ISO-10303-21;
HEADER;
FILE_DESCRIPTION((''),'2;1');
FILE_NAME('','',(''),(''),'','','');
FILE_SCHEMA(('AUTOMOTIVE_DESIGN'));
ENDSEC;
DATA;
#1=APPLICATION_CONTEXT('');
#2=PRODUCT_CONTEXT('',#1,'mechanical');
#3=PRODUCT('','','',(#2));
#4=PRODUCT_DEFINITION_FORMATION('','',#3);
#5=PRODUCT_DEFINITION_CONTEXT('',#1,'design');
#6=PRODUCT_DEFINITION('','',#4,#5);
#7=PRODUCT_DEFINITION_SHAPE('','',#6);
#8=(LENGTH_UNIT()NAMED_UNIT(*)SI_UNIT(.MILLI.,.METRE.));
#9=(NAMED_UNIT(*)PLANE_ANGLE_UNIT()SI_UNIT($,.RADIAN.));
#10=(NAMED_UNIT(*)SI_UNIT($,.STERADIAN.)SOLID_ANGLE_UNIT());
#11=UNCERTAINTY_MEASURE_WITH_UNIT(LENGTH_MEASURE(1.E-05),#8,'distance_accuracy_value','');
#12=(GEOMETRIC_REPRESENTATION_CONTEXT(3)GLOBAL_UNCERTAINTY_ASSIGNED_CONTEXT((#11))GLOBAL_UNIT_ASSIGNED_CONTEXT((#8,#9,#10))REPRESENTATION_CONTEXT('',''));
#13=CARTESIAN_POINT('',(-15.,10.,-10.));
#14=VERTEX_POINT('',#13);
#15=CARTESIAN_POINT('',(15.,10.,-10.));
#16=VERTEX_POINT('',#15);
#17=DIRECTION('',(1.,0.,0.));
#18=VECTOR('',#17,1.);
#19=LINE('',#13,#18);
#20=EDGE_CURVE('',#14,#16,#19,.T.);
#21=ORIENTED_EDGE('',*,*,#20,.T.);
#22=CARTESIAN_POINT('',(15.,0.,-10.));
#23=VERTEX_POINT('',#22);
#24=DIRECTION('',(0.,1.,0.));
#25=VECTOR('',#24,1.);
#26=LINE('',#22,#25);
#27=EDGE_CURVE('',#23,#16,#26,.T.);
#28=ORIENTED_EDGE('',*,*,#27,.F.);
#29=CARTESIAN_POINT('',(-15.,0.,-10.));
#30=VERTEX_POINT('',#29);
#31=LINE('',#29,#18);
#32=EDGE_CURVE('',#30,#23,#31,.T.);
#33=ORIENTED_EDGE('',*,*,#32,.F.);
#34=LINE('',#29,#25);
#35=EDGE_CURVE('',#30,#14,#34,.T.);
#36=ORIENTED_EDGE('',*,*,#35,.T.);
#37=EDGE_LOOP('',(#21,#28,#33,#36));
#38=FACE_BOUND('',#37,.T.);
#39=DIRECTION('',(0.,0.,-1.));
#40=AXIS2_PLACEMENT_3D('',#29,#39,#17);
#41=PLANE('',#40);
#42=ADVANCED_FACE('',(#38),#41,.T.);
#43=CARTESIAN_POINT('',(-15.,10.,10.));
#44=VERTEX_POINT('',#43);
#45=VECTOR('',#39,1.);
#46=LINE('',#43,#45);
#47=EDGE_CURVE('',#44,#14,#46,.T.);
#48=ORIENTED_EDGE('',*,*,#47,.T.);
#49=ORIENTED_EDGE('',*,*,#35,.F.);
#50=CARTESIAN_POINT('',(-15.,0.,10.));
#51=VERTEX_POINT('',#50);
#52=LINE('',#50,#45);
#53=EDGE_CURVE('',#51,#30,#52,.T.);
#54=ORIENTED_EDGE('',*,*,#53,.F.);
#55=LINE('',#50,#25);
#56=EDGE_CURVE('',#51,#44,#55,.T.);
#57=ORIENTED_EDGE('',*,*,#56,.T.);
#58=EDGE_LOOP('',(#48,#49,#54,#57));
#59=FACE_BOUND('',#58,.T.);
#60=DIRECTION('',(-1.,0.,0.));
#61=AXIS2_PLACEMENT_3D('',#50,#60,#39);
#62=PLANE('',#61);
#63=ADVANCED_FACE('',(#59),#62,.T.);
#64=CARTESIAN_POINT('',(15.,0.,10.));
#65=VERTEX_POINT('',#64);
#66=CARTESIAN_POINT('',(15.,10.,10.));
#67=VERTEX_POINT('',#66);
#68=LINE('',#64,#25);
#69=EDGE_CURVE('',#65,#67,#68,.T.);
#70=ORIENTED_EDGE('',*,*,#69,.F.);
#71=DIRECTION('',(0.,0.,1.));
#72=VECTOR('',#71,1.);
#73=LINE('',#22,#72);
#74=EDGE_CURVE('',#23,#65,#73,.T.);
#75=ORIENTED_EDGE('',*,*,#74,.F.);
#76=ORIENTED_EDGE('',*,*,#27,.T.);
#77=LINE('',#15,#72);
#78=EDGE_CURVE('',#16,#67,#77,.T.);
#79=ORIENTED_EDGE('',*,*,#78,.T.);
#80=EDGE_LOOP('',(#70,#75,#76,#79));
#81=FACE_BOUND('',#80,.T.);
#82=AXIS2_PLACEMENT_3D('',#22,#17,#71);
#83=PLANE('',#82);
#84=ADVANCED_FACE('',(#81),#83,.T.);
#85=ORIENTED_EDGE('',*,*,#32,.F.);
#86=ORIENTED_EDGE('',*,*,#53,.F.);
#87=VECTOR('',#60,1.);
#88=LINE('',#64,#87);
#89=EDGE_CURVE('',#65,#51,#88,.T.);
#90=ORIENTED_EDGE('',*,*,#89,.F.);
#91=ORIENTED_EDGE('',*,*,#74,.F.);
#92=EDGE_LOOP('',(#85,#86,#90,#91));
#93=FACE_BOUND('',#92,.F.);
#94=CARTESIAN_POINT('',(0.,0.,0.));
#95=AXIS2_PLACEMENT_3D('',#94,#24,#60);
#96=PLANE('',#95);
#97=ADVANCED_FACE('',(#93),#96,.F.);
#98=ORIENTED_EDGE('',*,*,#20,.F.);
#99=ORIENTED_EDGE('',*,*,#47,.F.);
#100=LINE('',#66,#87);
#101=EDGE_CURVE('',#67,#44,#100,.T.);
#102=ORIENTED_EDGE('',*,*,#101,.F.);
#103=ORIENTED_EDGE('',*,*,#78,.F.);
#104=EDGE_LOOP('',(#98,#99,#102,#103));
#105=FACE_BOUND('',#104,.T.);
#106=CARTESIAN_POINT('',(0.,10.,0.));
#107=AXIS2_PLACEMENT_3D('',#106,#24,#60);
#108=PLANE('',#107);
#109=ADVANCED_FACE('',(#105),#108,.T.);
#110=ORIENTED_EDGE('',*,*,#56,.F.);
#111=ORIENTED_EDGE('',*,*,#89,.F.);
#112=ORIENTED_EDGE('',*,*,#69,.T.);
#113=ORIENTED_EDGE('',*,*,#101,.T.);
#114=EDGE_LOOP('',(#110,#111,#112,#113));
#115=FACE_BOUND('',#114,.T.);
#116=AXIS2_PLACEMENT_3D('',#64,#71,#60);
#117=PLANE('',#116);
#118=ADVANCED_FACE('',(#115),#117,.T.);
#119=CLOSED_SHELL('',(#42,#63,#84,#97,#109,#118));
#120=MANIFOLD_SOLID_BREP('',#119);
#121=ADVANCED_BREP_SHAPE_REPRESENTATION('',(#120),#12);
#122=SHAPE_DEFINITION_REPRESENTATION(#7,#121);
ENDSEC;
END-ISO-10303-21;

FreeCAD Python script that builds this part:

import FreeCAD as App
import Part
import Sketcher

doc = App.newDocument("Part")
body = doc.addObject("PartDesign::Body", "Body")

# Sketch on XZ plane
sketch1 = body.newObject("Sketcher::SketchObject", "Sketch")
sketch1.AttachmentSupport = (doc.getObject("XZ_Plane"), [""])
sketch1.MapMode = "FlatFace"
sketch1.addGeometry([
    Part.LineSegment(App.Vector(-15, 10, 0), App.Vector(15, 10, 0)),
    Part.LineSegment(App.Vector(15, 10, 0), App.Vector(15, -10, 0)),
    Part.LineSegment(App.Vector(15, -10, 0), App.Vector(-15, -10, 0)),
    Part.LineSegment(App.Vector(-15, -10, 0), App.Vector(-15, 10, 0)),
], False)
sketch1.addConstraint([
    Sketcher.Constraint("Coincident", 0, 2, 1, 1),
    Sketcher.Constraint("Coincident", 1, 2, 2, 1),
    Sketcher.Constraint("Coincident", 2, 2, 3, 1),
    Sketcher.Constraint("Coincident", 3, 2, 0, 1),
    Sketcher.Constraint("Horizontal", 0),
    Sketcher.Constraint("Vertical", 1),
    Sketcher.Constraint("Horizontal", 2),
    Sketcher.Constraint("Vertical", 3),
    Sketcher.Constraint("Symmetric", 0, 2, 2, 2, -1, 1),
    Sketcher.Constraint("DistanceX", 0, 1, 0, 2, 30.0),
    Sketcher.Constraint("DistanceY", 1, 2, 1, 1, 20.0),
])
pad1 = body.newObject("PartDesign::Pad", "Pad")
pad1.Profile = sketch1
pad1.Length = 10
pad1.Reversed = True

doc.recompute()
